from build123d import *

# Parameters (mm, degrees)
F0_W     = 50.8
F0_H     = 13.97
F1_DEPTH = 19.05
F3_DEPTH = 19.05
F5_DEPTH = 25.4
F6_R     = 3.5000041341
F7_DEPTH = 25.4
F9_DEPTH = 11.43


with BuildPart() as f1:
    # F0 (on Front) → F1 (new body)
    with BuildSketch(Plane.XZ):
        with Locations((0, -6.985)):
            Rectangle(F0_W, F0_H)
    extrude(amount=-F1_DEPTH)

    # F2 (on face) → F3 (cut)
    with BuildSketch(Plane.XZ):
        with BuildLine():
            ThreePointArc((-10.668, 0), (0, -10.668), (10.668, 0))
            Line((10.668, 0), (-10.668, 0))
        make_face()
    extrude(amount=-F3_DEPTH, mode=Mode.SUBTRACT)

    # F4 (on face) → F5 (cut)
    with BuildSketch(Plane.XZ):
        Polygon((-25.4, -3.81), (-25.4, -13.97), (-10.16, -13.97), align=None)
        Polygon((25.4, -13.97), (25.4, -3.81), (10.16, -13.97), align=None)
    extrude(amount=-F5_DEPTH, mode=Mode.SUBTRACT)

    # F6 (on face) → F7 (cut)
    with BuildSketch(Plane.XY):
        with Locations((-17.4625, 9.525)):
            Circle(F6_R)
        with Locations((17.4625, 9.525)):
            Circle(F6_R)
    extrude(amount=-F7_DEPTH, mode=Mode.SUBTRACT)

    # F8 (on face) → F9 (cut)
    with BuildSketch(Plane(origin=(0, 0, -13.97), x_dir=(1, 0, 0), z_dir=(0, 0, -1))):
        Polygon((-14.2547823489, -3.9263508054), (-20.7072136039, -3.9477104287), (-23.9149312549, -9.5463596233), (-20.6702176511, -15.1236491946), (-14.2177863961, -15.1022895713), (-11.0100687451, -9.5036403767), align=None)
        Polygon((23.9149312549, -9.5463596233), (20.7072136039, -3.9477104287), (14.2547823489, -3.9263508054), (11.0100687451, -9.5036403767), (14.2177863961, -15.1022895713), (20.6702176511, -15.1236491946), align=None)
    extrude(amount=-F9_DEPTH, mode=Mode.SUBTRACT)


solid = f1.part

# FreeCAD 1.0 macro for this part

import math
import FreeCAD as App
import Part
import Sketcher
Q = App.Units.Quantity


def add_polygon(sketch, points):
    """Adds a closed chain of lines whose ends are joined by coincident constraints."""
    first, n = sketch.GeometryCount, len(points)
    for a, b in zip(points, points[1:] + points[:1]):
        sketch.addGeometry(Part.LineSegment(App.Vector(*a, 0), App.Vector(*b, 0)), False)
    for i in range(n):
        sketch.addConstraint(Sketcher.Constraint("Coincident", first + i, 2, first + (i + 1) % n, 1))

doc = App.newDocument("Part")
body = doc.addObject("PartDesign::Body", "Body")

# Sketch on XZ plane
sketch1 = doc.addObject("Sketcher::SketchObject", "Sketch")
body.addObject(sketch1)
sketch1.AttachmentSupport = (doc.XZ_Plane, [""])
sketch1.MapMode = "FlatFace"
add_polygon(sketch1, [(-25.4, 0), (-25.4, -13.97), (25.4, -13.97), (25.4, 0)])  # lines 0-3
sketch1.addConstraint(Sketcher.Constraint("Vertical", 0))
sketch1.addConstraint(Sketcher.Constraint("Horizontal", 1))
sketch1.addConstraint(Sketcher.Constraint("Vertical", 2))
sketch1.addConstraint(Sketcher.Constraint("Horizontal", 3))
sketch1.addConstraint(Sketcher.Constraint("Symmetric", 2, 2, 3, 2, -1, 1))
sketch1.addConstraint(Sketcher.Constraint("DistanceX", 1, 1, 1, 2, Q("2 in")))
sketch1.addConstraint(Sketcher.Constraint("DistanceY", 0, 2, 0, 1, Q("0.55 in")))
pad1 = doc.addObject("PartDesign::Pad", "Pad")
body.addObject(pad1)
pad1.Profile = sketch1
pad1.Length = Q("0.75 in")
pad1.Reversed = True

# Sketch on XZ plane
sketch2 = doc.addObject("Sketcher::SketchObject", "Sketch001")
body.addObject(sketch2)
sketch2.AttachmentSupport = (doc.XZ_Plane, [""])
sketch2.MapMode = "FlatFace"
sketch2.addGeometry(Part.ArcOfCircle(Part.Circle(App.Vector(0, 0, 0), App.Vector(0, 0, 1), 10.668), math.radians(180), math.radians(360)), False)
sketch2.addGeometry(Part.LineSegment(App.Vector(10.668, 0, 0), App.Vector(-10.668, 0, 0)), False)
sketch2.addConstraint(Sketcher.Constraint("Coincident", 0, 1, 1, 2))
sketch2.addConstraint(Sketcher.Constraint("Coincident", 1, 1, 0, 2))
sketch2.addConstraint(Sketcher.Constraint("Horizontal", 1))
sketch2.addConstraint(Sketcher.Constraint("Coincident", 0, 3, -1, 1))
sketch2.addConstraint(Sketcher.Constraint("PointOnObject", 0, 1, -1))
sketch2.addConstraint(Sketcher.Constraint("Radius", 0, Q("0.42 in")))
pocket1 = doc.addObject("PartDesign::Pocket", "Pocket")
body.addObject(pocket1)
pocket1.Profile = sketch2
pocket1.Length = Q("0.75 in")

# Sketch on XZ plane
sketch3 = doc.addObject("Sketcher::SketchObject", "Sketch002")
body.addObject(sketch3)
sketch3.AttachmentSupport = (doc.XZ_Plane, [""])
sketch3.MapMode = "FlatFace"
add_polygon(sketch3, [(-25.4, -3.81), (-25.4, -13.97), (-10.16, -13.97)])  # lines 0-2
add_polygon(sketch3, [(25.4, -13.97), (25.4, -3.81), (10.16, -13.97)])  # lines 3-5
sketch3.addConstraint(Sketcher.Constraint("Vertical", 0))
sketch3.addConstraint(Sketcher.Constraint("Horizontal", 1))
sketch3.addConstraint(Sketcher.Constraint("Vertical", 3))
sketch3.addConstraint(Sketcher.Constraint("Horizontal", 5))
sketch3.addConstraint(Sketcher.Constraint("Symmetric", 2, 2, 3, 2, -2))
sketch3.addConstraint(Sketcher.Constraint("Symmetric", 1, 2, 4, 2, -2))
sketch3.addConstraint(Sketcher.Constraint("DistanceX", 1, 1, 1, 2, Q("0.6 in")))
sketch3.addConstraint(Sketcher.Constraint("DistanceY", 0, 2, 0, 1, Q("0.4 in")))
sketch3.addConstraint(Sketcher.Constraint("DistanceX", 0, 2, -1, 1, Q("1 in")))
sketch3.addConstraint(Sketcher.Constraint("DistanceY", 0, 2, -1, 1, Q("0.55 in")))
pocket2 = doc.addObject("PartDesign::Pocket", "Pocket001")
body.addObject(pocket2)
pocket2.Profile = sketch3
pocket2.Length = Q("1 in")

# Sketch on XY plane
sketch4 = doc.addObject("Sketcher::SketchObject", "Sketch003")
body.addObject(sketch4)
sketch4.AttachmentSupport = (doc.XY_Plane, [""])
sketch4.MapMode = "FlatFace"
sketch4.addGeometry(Part.Circle(App.Vector(-17.4625, 9.525, 0), App.Vector(0, 0, 1), 3.500004), False)
sketch4.addGeometry(Part.Circle(App.Vector(17.4625, 9.525, 0), App.Vector(0, 0, 1), 3.500004), False)
sketch4.addConstraint(Sketcher.Constraint("Equal", 0, 1))
sketch4.addConstraint(Sketcher.Constraint("Symmetric", 0, 3, 1, 3, -2))
sketch4.addConstraint(Sketcher.Constraint("Diameter", 0, Q("7.000008 mm")))
sketch4.addConstraint(Sketcher.Constraint("DistanceX", 0, 3, -1, 1, Q("0.6875 in")))
sketch4.addConstraint(Sketcher.Constraint("DistanceY", -1, 1, 0, 3, Q("0.375 in")))
pocket3 = doc.addObject("PartDesign::Pocket", "Pocket002")
body.addObject(pocket3)
pocket3.Profile = sketch4
pocket3.Length = Q("1 in")

# Sketch on XY plane
sketch5 = doc.addObject("Sketcher::SketchObject", "Sketch004")
body.addObject(sketch5)
sketch5.AttachmentSupport = (doc.XY_Plane, [""])
sketch5.MapMode = "FlatFace"
sketch5.AttachmentOffset = App.Placement(App.Vector(0, 0, -0.55 * 25.4), App.Rotation())
add_polygon(sketch5, [(-14.254782, 3.926351), (-20.707214, 3.94771), (-23.914931, 9.54636), (-20.670218, 15.123649), (-14.217786, 15.10229), (-11.010069, 9.50364)])  # lines 0-5
add_polygon(sketch5, [(23.914931, 9.54636), (20.707214, 3.94771), (14.254782, 3.926351), (11.010069, 9.50364), (14.217786, 15.10229), (20.670218, 15.123649)])  # lines 6-11
sketch5.addConstraint(Sketcher.Constraint("Symmetric", 0, 2, 6, 2, -2))
sketch5.addConstraint(Sketcher.Constraint("Symmetric", 5, 2, 7, 2, -2))
sketch5.addConstraint(Sketcher.Constraint("Symmetric", 4, 2, 8, 2, -2))
sketch5.addConstraint(Sketcher.Constraint("Symmetric", 3, 2, 9, 2, -2))
sketch5.addConstraint(Sketcher.Constraint("Symmetric", 2, 2, 10, 2, -2))
sketch5.addConstraint(Sketcher.Constraint("Symmetric", 1, 2, 11, 2, -2))
sketch5.addConstraint(Sketcher.Constraint("Parallel", 0, 3))
sketch5.addConstraint(Sketcher.Constraint("Parallel", 1, 4))
sketch5.addConstraint(Sketcher.Constraint("Parallel", 2, 5))
sketch5.addConstraint(Sketcher.Constraint("Equal", 0, 1))
sketch5.addConstraint(Sketcher.Constraint("Equal", 1, 2))
sketch5.addConstraint(Sketcher.Constraint("Equal", 2, 3))
sketch5.addConstraint(Sketcher.Constraint("DistanceX", 3, 2, 6, 2, Q("1.375 in")))
sketch5.addConstraint(Sketcher.Constraint("DistanceY", 5, 2, 2, 2, Q("11.197298 mm")))
sketch5.addConstraint(Sketcher.Constraint("DistanceY", -1, 1, 0, 2, Q("3.94771 mm")))
sketch5.addConstraint(Sketcher.Constraint("DistanceX", 1, 2, -1, 1, Q("23.914931 mm")))
sketch5.addConstraint(Sketcher.Constraint("DistanceY", -1, 1, 1, 2, Q("9.54636 mm")))
sketch5.addConstraint(Sketcher.Constraint("DistanceY", -1, 1, 2, 2, Q("15.123649 mm")))
pocket4 = doc.addObject("PartDesign::Pocket", "Pocket003")
body.addObject(pocket4)
pocket4.Profile = sketch5
pocket4.Length = Q("0.45 in")
pocket4.Reversed = True

doc.recompute()
